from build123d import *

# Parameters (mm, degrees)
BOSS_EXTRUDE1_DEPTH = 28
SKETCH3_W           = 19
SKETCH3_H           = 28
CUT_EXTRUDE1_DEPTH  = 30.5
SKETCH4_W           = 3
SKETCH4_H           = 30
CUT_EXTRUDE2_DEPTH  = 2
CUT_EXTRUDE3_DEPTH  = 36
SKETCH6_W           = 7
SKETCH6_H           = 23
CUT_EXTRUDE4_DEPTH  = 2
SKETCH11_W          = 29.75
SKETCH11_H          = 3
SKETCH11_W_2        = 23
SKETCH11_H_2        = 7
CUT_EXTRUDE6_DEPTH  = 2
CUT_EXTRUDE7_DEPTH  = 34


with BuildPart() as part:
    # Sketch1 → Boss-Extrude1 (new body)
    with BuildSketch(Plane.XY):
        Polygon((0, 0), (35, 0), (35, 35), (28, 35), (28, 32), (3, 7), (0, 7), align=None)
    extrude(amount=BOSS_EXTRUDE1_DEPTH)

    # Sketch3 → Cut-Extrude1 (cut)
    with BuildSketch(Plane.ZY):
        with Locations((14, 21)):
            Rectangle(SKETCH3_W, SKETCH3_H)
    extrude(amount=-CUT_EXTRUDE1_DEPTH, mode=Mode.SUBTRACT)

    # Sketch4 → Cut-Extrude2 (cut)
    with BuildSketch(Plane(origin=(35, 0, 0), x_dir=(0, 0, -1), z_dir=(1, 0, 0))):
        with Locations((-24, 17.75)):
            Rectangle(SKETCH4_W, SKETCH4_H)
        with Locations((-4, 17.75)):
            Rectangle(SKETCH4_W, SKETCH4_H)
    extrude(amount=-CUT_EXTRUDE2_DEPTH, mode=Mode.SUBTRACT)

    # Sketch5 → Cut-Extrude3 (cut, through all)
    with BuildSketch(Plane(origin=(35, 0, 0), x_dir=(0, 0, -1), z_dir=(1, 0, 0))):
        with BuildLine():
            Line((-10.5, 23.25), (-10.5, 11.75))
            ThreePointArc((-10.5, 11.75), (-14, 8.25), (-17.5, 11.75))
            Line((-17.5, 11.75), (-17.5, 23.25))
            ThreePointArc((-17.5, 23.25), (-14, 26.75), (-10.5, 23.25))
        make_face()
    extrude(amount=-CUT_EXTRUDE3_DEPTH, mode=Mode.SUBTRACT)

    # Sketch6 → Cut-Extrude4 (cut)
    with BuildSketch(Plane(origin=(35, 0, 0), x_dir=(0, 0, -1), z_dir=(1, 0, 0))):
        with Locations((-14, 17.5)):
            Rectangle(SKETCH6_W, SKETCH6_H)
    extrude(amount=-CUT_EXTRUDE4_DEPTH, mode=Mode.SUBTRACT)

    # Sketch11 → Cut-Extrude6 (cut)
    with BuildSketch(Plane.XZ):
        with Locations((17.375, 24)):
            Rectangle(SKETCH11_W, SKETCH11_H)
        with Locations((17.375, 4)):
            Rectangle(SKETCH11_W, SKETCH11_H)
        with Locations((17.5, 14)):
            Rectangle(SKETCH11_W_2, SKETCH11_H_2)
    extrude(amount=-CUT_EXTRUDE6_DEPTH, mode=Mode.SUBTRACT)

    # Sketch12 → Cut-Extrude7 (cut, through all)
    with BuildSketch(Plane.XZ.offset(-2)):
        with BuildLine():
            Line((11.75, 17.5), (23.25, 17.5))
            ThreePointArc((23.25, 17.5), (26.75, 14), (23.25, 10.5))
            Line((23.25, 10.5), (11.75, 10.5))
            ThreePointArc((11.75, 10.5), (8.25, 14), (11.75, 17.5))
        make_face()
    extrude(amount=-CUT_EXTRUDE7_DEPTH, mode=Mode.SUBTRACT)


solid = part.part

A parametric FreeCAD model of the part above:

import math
import FreeCAD as App
import Part
import Sketcher


def add_polygon(sketch, points):
    """Adds a closed chain of lines whose ends are joined by coincident constraints."""
    first, n = sketch.GeometryCount, len(points)
    for a, b in zip(points, points[1:] + points[:1]):
        sketch.addGeometry(Part.LineSegment(App.Vector(*a, 0), App.Vector(*b, 0)), False)
    for i in range(n):
        sketch.addConstraint(Sketcher.Constraint("Coincident", first + i, 2, first + (i + 1) % n, 1))

doc = App.newDocument("Part")
body = doc.addObject("PartDesign::Body", "Body")

# Sketch on XY plane
sketch1 = body.newObject("Sketcher::SketchObject", "Sketch")
sketch1.AttachmentSupport = (doc.getObject("XY_Plane"), [""])
sketch1.MapMode = "FlatFace"
add_polygon(sketch1, [(0, 0), (35, 0), (35, 35), (28, 35), (28, 32), (3, 7), (0, 7)])  # lines 0-6
sketch1.addConstraint([
    Sketcher.Constraint("Horizontal", 0),
    Sketcher.Constraint("Vertical", 1),
    Sketcher.Constraint("Horizontal", 2),
    Sketcher.Constraint("Vertical", 3),
    Sketcher.Constraint("Horizontal", 5),
    Sketcher.Constraint("Vertical", 6),
    Sketcher.Constraint("Coincident", 6, 2, -1, 1),
    Sketcher.Constraint("Equal", 0, 1),
    Sketcher.Constraint("Equal", 5, 3),
    Sketcher.Constraint("Equal", 2, 6),
    Sketcher.Constraint("DistanceX", 0, 1, 0, 2, 35.0),
    Sketcher.Constraint("DistanceX", 2, 2, 2, 1, 7.0),
    Sketcher.Constraint("DistanceX", 5, 2, 5, 1, 3.0),
])
pad1 = body.newObject("PartDesign::Pad", "Pad")
pad1.Profile = sketch1
pad1.Length = 28

# Sketch on YZ plane
sketch2 = body.newObject("Sketcher::SketchObject", "Sketch001")
sketch2.AttachmentSupport = (doc.getObject("YZ_Plane"), [""])
sketch2.MapMode = "FlatFace"
add_polygon(sketch2, [(35, 4), (7, 4), (7, 24), (35, 24)])  # lines 0-3
sketch2.addConstraint([
    Sketcher.Constraint("Horizontal", 0),
    Sketcher.Constraint("Vertical", 1),
    Sketcher.Constraint("Horizontal", 2),
    Sketcher.Constraint("Vertical", 3),
    Sketcher.Constraint("DistanceX", 0, 2, 0, 1, 28.0),
    Sketcher.Constraint("DistanceY", 1, 1, 1, 2, 19.0),
    Sketcher.Constraint("DistanceX", -1, 1, 0, 2, 7.0),
    Sketcher.Constraint("DistanceY", -1, 1, 0, 2, 4.5),
])
pocket1 = body.newObject("PartDesign::Pocket", "Pocket")
pocket1.Profile = sketch2
pocket1.Length = 30.5
pocket1.Reversed = True

# Sketch on YZ plane
sketch3 = body.newObject("Sketcher::SketchObject", "Sketch002")
sketch3.AttachmentSupport = (doc.getObject("YZ_Plane"), [""])
sketch3.MapMode = "FlatFace"
sketch3.AttachmentOffset = App.Placement(App.Vector(0, 0, 35), App.Rotation())
add_polygon(sketch3, [(32.8, 25.5), (2.8, 25.5), (2.8, 22.5), (32.8, 22.5)])  # lines 0-3
add_polygon(sketch3, [(32.8, 5.5), (2.8, 5.5), (2.8, 2.5), (32.8, 2.5)])  # lines 4-7
sketch3.addConstraint([
    Sketcher.Constraint("Horizontal", 0),
    Sketcher.Constraint("Vertical", 1),
    Sketcher.Constraint("Horizontal", 2),
    Sketcher.Constraint("Vertical", 3),
    Sketcher.Constraint("Horizontal", 4),
    Sketcher.Constraint("Vertical", 5),
    Sketcher.Constraint("Horizontal", 6),
    Sketcher.Constraint("Vertical", 7),
    Sketcher.Constraint("Vertical", 1, 2, 4, 2),
    Sketcher.Constraint("Vertical", 3, 2, 6, 2),
    Sketcher.Constraint("Equal", 3, 5),
    Sketcher.Constraint("DistanceX", 0, 2, 0, 1, 30.0),
    Sketcher.Constraint("DistanceY", 1, 2, 1, 1, 3.0),
    Sketcher.Constraint("DistanceY", 4, 2, 1, 2, 17.0),
    Sketcher.Constraint("DistanceY", -1, 1, 0, 2, 25.5),
    Sketcher.Constraint("DistanceX", -1, 1, 0, 2, 2.75),
])
pocket2 = body.newObject("PartDesign::Pocket", "Pocket001")
pocket2.Profile = sketch3
pocket2.Length = 2

# Sketch on YZ plane
sketch4 = body.newObject("Sketcher::SketchObject", "Sketch003")
sketch4.AttachmentSupport = (doc.getObject("YZ_Plane"), [""])
sketch4.MapMode = "FlatFace"
sketch4.AttachmentOffset = App.Placement(App.Vector(0, 0, 35), App.Rotation())
sketch4.addGeometry([
    Part.LineSegment(App.Vector(11.8, 10.5, 0), App.Vector(23.2, 10.5, 0)),
    Part.ArcOfCircle(Part.Circle(App.Vector(23.2, 14, 0), App.Vector(0, 0, 1), 3.5), math.radians(-90), math.radians(90)),
    Part.LineSegment(App.Vector(23.2, 17.5, 0), App.Vector(11.8, 17.5, 0)),
    Part.ArcOfCircle(Part.Circle(App.Vector(11.8, 14, 0), App.Vector(0, 0, 1), 3.5), math.radians(90), math.radians(270)),
], False)
sketch4.addConstraint([
    Sketcher.Constraint("Tangent", 0, 2, 1, 1),
    Sketcher.Constraint("Tangent", 1, 2, 2, 1),
    Sketcher.Constraint("Tangent", 2, 2, 3, 1),
    Sketcher.Constraint("Tangent", 3, 2, 0, 1),
    Sketcher.Constraint("Horizontal", 0),
    Sketcher.Constraint("Horizontal", 2),
    Sketcher.Constraint("Radius", 1, 3.5),
    Sketcher.Constraint("DistanceX", 0, 1, 0, 2, 11.5),
    Sketcher.Constraint("DistanceY", -1, 1, 1, 3, 14.0),
    Sketcher.Constraint("DistanceX", -1, 1, 1, 3, 23.25),
])
pocket3 = body.newObject("PartDesign::Pocket", "Pocket002")
pocket3.Profile = sketch4
pocket3.Type = "ThroughAll"

# Sketch on YZ plane
sketch5 = body.newObject("Sketcher::SketchObject", "Sketch004")
sketch5.AttachmentSupport = (doc.getObject("YZ_Plane"), [""])
sketch5.MapMode = "FlatFace"
sketch5.AttachmentOffset = App.Placement(App.Vector(0, 0, 35), App.Rotation())
add_polygon(sketch5, [(29, 18), (6, 18), (6, 10), (29, 10)])  # lines 0-3
sketch5.addConstraint([
    Sketcher.Constraint("Horizontal", 0),
    Sketcher.Constraint("Vertical", 1),
    Sketcher.Constraint("Horizontal", 2),
    Sketcher.Constraint("Vertical", 3),
    Sketcher.Constraint("DistanceX", 0, 2, 0, 1, 23.0),
    Sketcher.Constraint("DistanceY", 1, 2, 1, 1, 7.0),
    Sketcher.Constraint("DistanceX", -1, 1, 0, 2, 6.0),
    Sketcher.Constraint("DistanceY", -1, 1, 0, 2, 17.5),
])
pocket4 = body.newObject("PartDesign::Pocket", "Pocket003")
pocket4.Profile = sketch5
pocket4.Length = 2

# Sketch on XZ plane
sketch6 = body.newObject("Sketcher::SketchObject", "Sketch005")
sketch6.AttachmentSupport = (doc.getObject("XZ_Plane"), [""])
sketch6.MapMode = "FlatFace"
add_polygon(sketch6, [(2.5, 25.5), (2.5, 22.5), (32.2, 22.5), (32.2, 25.5)])  # lines 0-3
add_polygon(sketch6, [(2.5, 5.5), (2.5, 2.5), (32.2, 2.5), (32.2, 5.5)])  # lines 4-7
add_polygon(sketch6, [(6, 17.5), (6, 10.5), (29, 10.5), (29, 17.5)])  # lines 8-11
sketch6.addConstraint([
    Sketcher.Constraint("Vertical", 0),
    Sketcher.Constraint("Horizontal", 1),
    Sketcher.Constraint("Vertical", 2),
    Sketcher.Constraint("Horizontal", 3),
    Sketcher.Constraint("Vertical", 4),
    Sketcher.Constraint("Horizontal", 5),
    Sketcher.Constraint("Vertical", 6),
    Sketcher.Constraint("Horizontal", 7),
    Sketcher.Constraint("Vertical", 8),
    Sketcher.Constraint("Horizontal", 9),
    Sketcher.Constraint("Vertical", 10),
    Sketcher.Constraint("Horizontal", 11),
    Sketcher.Constraint("Vertical", 3, 2, 4, 2),
    Sketcher.Constraint("Vertical", 2, 2, 5, 2),
    Sketcher.Constraint("Equal", 2, 4),
    Sketcher.Constraint("DistanceX", 9, 1, 9, 2, 23.0),
    Sketcher.Constraint("DistanceY", 0, 2, 0, 1, 3.0),
    Sketcher.Constraint("DistanceY", 8, 2, 8, 1, 7.0),
    Sketcher.Constraint("DistanceX", -1, 1, 8, 2, 6.0),
    Sketcher.Constraint("DistanceY", 4, 2, 0, 2, 20.0),
    Sketcher.Constraint("DistanceY", 7, 2, 8, 2, 5.0),
    Sketcher.Constraint("DistanceX", 1, 1, 1, 2, 29.75),
    Sketcher.Constraint("DistanceX", -1, 1, 0, 2, 2.5),
    Sketcher.Constraint("DistanceY", -1, 1, 0, 2, 22.5),
])
pocket5 = body.newObject("PartDesign::Pocket", "Pocket004")
pocket5.Profile = sketch6
pocket5.Length = 2

# Sketch on XZ plane
sketch7 = body.newObject("Sketcher::SketchObject", "Sketch006")
sketch7.AttachmentSupport = (doc.getObject("XZ_Plane"), [""])
sketch7.MapMode = "FlatFace"
sketch7.AttachmentOffset = App.Placement(App.Vector(0, 0, -2), App.Rotation())
sketch7.addGeometry([
    Part.LineSegment(App.Vector(23.2, 17.5, 0), App.Vector(11.8, 17.5, 0)),
    Part.ArcOfCircle(Part.Circle(App.Vector(11.8, 14, 0), App.Vector(0, 0, 1), 3.5), math.radians(90), math.radians(270)),
    Part.LineSegment(App.Vector(11.8, 10.5, 0), App.Vector(23.2, 10.5, 0)),
    Part.ArcOfCircle(Part.Circle(App.Vector(23.2, 14, 0), App.Vector(0, 0, 1), 3.5), math.radians(-90), math.radians(90)),
], False)
sketch7.addConstraint([
    Sketcher.Constraint("Tangent", 0, 2, 1, 1),
    Sketcher.Constraint("Tangent", 1, 2, 2, 1),
    Sketcher.Constraint("Tangent", 2, 2, 3, 1),
    Sketcher.Constraint("Tangent", 3, 2, 0, 1),
    Sketcher.Constraint("Horizontal", 0),
    Sketcher.Constraint("Horizontal", 2),
    Sketcher.Constraint("Radius", 1, 3.5),
    Sketcher.Constraint("DistanceX", 0, 2, 0, 1, 11.5),
    Sketcher.Constraint("DistanceY", -1, 1, 1, 3, 14.0),
    Sketcher.Constraint("DistanceX", -1, 1, 1, 3, 11.75),
])
pocket6 = body.newObject("PartDesign::Pocket", "Pocket005")
pocket6.Profile = sketch7
pocket6.Type = "ThroughAll"

doc.recompute()
